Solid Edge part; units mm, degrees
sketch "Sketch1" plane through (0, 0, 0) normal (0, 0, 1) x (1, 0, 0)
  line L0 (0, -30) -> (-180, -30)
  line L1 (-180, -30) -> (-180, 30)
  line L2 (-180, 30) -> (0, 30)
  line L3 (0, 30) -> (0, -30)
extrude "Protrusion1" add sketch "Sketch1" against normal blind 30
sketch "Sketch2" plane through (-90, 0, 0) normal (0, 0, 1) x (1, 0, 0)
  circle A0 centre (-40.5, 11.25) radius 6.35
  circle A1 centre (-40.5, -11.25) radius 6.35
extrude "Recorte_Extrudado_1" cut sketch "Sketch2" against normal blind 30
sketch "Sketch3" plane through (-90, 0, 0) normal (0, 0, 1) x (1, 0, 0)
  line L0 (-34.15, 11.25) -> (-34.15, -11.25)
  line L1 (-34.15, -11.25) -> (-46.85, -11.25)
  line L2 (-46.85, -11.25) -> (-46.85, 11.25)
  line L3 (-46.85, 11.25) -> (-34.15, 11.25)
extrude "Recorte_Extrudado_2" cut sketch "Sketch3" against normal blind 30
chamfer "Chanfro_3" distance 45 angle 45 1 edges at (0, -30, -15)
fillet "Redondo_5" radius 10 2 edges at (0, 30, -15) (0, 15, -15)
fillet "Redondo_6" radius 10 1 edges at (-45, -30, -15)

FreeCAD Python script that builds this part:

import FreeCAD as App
import Part
import Sketcher
from FreeCAD import Vector
Q = App.Units.Quantity


def edges_at(feature, points):
    """Names of the edges that pass closest to the given points."""
    edges = feature.Shape.Edges
    near = lambda p: min(range(len(edges)), key=lambda i: edges[i].distToShape(Part.Vertex(*p))[0])
    return sorted({f"Edge{near(p) + 1}" for p in points})


def add_polygon(sketch, points):
    """Adds a closed chain of lines whose ends are joined by coincident constraints."""
    first, n = sketch.GeometryCount, len(points)
    for a, b in zip(points, points[1:] + points[:1]):
        sketch.addGeometry(Part.LineSegment(App.Vector(*a, 0), App.Vector(*b, 0)), False)
    for i in range(n):
        sketch.addConstraint(Sketcher.Constraint("Coincident", first + i, 2, first + (i + 1) % n, 1))

doc = App.newDocument("Part")
body = doc.addObject("PartDesign::Body", "Body")

# Sketch on XY plane
sketch1 = body.newObject("Sketcher::SketchObject", "Sketch")
sketch1.AttachmentSupport = (doc.getObject("XY_Plane"), [""])
sketch1.MapMode = "FlatFace"
add_polygon(sketch1, [(-180, -30), (0, -30), (0, 30), (-180, 30)])  # lines 0-3
sketch1.addConstraint([
    Sketcher.Constraint("Horizontal", 0),
    Sketcher.Constraint("Vertical", 1),
    Sketcher.Constraint("Horizontal", 2),
    Sketcher.Constraint("Vertical", 3),
    Sketcher.Constraint("Symmetric", 0, 2, 1, 2, -1, 1),
    Sketcher.Constraint("DistanceX", 0, 1, 0, 2, Q("180 mm")),
    Sketcher.Constraint("DistanceY", 1, 1, 1, 2, Q("60 mm")),
])
pad1 = body.newObject("PartDesign::Pad", "Pad")
pad1.Profile = sketch1
pad1.Length = 30
pad1.Reversed = True

# Sketch on XY plane
sketch2 = body.newObject("Sketcher::SketchObject", "Sketch001")
sketch2.AttachmentSupport = (doc.getObject("XY_Plane"), [""])
sketch2.MapMode = "FlatFace"
sketch2.addGeometry([
    Part.Circle(Vector(-130, 11, 0), Vector(0, 0, 1), 6),
    Part.Circle(Vector(-130, -11, 0), Vector(0, 0, 1), 6),
], False)
sketch2.addConstraint([
    Sketcher.Constraint("Equal", 0, 1),
    Sketcher.Constraint("Symmetric", 0, 3, 1, 3, -1),
    Sketcher.Constraint("Diameter", 0, Q("12.7 mm")),
    Sketcher.Constraint("DistanceX", 0, 3, -1, 1, Q("130.5 mm")),
    Sketcher.Constraint("DistanceY", 1, 3, 0, 3, Q("22.5 mm")),
])
pocket1 = body.newObject("PartDesign::Pocket", "Pocket")
pocket1.Profile = sketch2
pocket1.Length = 30

# Sketch on XY plane
sketch3 = body.newObject("Sketcher::SketchObject", "Sketch002")
sketch3.AttachmentSupport = (doc.getObject("XY_Plane"), [""])
sketch3.MapMode = "FlatFace"
add_polygon(sketch3, [(-124, -11), (-124, 11), (-137, 11), (-137, -11)])  # lines 0-3
sketch3.addConstraint([
    Sketcher.Constraint("Vertical", 0),
    Sketcher.Constraint("Horizontal", 1),
    Sketcher.Constraint("Vertical", 2),
    Sketcher.Constraint("Horizontal", 3),
    Sketcher.Constraint("DistanceX", 1, 2, 1, 1, Q("12.7 mm")),
    Sketcher.Constraint("DistanceY", 0, 1, 0, 2, Q("22.5 mm")),
    Sketcher.Constraint("DistanceX", 0, 2, -1, 1, Q("124.15 mm")),
    Sketcher.Constraint("DistanceY", -1, 1, 0, 2, Q("11.25 mm")),
])
pocket2 = body.newObject("PartDesign::Pocket", "Pocket001")
pocket2.Profile = sketch3
pocket2.Length = 30
doc.recompute()

chamfer = body.newObject("PartDesign::Chamfer", "Chamfer")
chamfer.Base = (pocket2, edges_at(pocket2, [(0, -30, -15)]))
chamfer.Size = 45
doc.recompute()

fillet = body.newObject("PartDesign::Fillet", "Fillet")
fillet.Base = (chamfer, edges_at(chamfer, [(0, 30, -15), (0, 15, -15)]))
fillet.Radius = 10
doc.recompute()

fillet2 = body.newObject("PartDesign::Fillet", "Fillet001")
fillet2.Base = (fillet, edges_at(fillet, [(-45, -30, -15)]))
fillet2.Radius = 10

doc.recompute()
